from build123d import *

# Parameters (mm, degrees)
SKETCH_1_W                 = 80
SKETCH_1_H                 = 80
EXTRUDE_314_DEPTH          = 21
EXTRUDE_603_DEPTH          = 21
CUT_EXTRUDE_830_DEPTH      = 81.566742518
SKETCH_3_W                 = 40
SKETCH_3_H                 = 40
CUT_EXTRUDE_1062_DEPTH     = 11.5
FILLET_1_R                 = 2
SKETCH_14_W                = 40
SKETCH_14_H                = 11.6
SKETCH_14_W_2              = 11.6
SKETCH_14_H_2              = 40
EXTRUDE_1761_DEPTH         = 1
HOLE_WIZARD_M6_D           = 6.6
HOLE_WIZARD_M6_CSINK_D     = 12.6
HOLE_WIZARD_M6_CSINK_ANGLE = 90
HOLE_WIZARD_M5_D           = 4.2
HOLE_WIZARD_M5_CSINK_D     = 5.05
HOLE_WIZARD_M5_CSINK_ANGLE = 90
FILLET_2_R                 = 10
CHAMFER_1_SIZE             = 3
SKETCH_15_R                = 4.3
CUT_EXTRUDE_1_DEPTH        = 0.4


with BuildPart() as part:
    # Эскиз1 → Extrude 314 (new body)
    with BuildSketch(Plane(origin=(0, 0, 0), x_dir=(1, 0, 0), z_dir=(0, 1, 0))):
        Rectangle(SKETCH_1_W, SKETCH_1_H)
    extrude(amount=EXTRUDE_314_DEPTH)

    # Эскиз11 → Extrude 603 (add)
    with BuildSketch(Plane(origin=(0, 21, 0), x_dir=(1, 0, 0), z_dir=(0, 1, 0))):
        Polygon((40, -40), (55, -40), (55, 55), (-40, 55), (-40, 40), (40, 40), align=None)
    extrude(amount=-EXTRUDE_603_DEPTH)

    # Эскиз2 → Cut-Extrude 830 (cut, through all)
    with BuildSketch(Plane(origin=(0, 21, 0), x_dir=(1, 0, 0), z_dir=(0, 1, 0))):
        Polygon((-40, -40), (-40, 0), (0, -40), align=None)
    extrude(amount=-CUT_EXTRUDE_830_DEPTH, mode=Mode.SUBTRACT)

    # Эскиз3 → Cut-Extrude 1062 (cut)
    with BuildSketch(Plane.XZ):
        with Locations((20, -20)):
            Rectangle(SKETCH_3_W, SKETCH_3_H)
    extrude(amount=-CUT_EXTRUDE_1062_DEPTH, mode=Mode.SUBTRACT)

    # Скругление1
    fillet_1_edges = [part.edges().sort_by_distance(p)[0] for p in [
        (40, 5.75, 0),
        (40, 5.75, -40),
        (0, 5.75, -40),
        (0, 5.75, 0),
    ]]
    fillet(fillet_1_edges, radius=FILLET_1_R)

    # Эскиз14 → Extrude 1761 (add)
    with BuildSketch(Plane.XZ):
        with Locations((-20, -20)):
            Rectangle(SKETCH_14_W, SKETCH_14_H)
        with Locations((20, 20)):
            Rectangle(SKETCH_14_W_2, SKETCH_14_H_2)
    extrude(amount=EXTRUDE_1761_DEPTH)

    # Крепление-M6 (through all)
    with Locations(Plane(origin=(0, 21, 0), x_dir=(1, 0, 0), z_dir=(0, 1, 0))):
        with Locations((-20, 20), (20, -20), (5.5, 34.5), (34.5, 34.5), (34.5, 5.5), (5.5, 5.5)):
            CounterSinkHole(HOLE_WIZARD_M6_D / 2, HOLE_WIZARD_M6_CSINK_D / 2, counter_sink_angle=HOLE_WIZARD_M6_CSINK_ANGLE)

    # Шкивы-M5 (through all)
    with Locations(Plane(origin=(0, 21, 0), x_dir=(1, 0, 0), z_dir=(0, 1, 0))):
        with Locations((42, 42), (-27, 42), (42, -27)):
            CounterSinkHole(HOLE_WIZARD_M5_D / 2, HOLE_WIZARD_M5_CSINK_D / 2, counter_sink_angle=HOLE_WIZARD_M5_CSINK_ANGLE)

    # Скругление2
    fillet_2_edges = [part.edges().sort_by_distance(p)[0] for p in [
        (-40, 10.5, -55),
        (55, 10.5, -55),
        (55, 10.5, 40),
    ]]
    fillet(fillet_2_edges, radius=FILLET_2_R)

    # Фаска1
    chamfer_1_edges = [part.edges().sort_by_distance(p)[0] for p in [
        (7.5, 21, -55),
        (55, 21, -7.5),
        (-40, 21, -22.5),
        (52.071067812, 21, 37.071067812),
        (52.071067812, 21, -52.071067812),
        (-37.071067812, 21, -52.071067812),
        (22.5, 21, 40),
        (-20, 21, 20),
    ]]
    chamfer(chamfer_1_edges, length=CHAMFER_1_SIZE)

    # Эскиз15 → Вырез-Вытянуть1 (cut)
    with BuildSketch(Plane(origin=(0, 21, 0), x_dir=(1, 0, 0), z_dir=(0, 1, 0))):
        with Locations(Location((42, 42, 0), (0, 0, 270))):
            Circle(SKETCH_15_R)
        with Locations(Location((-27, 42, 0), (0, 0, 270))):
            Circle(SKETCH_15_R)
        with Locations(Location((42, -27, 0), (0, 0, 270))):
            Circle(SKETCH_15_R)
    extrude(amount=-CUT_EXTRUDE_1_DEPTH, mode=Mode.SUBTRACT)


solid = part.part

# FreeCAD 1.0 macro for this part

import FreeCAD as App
import Part
import Sketcher

V = App.Vector


def edges_at(feature, points):
    """Names of the edges that pass closest to the given points."""
    edges = feature.Shape.Edges
    near = lambda p: min(range(len(edges)), key=lambda i: edges[i].distToShape(Part.Vertex(*p))[0])
    return sorted({f"Edge{near(p) + 1}" for p in points})


def add_polygon(sketch, points):
    """Adds a closed chain of lines whose ends are joined by coincident constraints."""
    first, n = sketch.GeometryCount, len(points)
    for a, b in zip(points, points[1:] + points[:1]):
        sketch.addGeometry(Part.LineSegment(App.Vector(*a, 0), App.Vector(*b, 0)), False)
    for i in range(n):
        sketch.addConstraint(Sketcher.Constraint("Coincident", first + i, 2, first + (i + 1) % n, 1))

doc = App.newDocument("Part")
params = doc.addObject("Spreadsheet::Sheet", "Params")
for row, (alias, value) in enumerate([
    ("sketch1_width", "80 mm"),
    ("pad1_length", "21 mm"),
    ("sketch2_width", "15 mm"),
    ("sketch2_width2", "95 mm"),
    ("pad2_length", "21 mm"),
    ("sketch3_width", "40 mm"),
    ("sketch4_width", "40 mm"),
    ("pocket2_length", "11.5 mm"),
    ("fillet_radius", "2 mm"),
    ("sketch5_width", "40 mm"),
    ("sketch5_width2", "11.6 mm"),
    ("pad3_length", "1 mm"),
    ("sketch6_diameter", "6.6 mm"),
    ("hole_diameter", "6.6 mm"),
    ("hole_csink_diameter", "12.6 mm"),
    ("sketch7_diameter", "4.2 mm"),
    ("hole2_diameter", "4.2 mm"),
    ("hole2_csink_diameter", "5.05 mm"),
    ("fillet2_radius", "10 mm"),
    ("chamfer_size", "3 mm"),
    ("sketch8_diameter", "8.6 mm"),
    ("pocket3_length", "0.4 mm"),
], start=1):
    params.set(f"A{row}", alias)
    params.set(f"B{row}", "=" + value)
    params.setAlias(f"B{row}", alias)

body = doc.addObject("PartDesign::Body", "Body")

sketch1 = body.newObject("Sketcher::SketchObject", "Sketch")
sketch1.AttachmentSupport = (doc.getObject("XZ_Plane"), [""])
sketch1.MapMode = "FlatFace"
add_polygon(sketch1, [(-40, -40), (-40, 40), (40, 40), (40, -40)])
sketch1.addConstraint(Sketcher.Constraint("Vertical", 0))
sketch1.addConstraint(Sketcher.Constraint("Horizontal", 1))
sketch1.addConstraint(Sketcher.Constraint("Vertical", 2))
sketch1.addConstraint(Sketcher.Constraint("Horizontal", 3))
sketch1.addConstraint(Sketcher.Constraint("Symmetric", 0, 2, 2, 2, -1, 1))
sketch1.addConstraint(Sketcher.Constraint("Equal", 3, 0))
sketch1.addConstraint(Sketcher.Constraint("DistanceX", 1, 1, 1, 2, 80.0))
sketch1.setExpression("Constraints[10]", "Params.sketch1_width")
pad1 = body.newObject("PartDesign::Pad", "Pad")
pad1.Profile = sketch1
pad1.setExpression("Length", "Params.pad1_length")
pad1.Reversed = True

sketch2 = body.newObject("Sketcher::SketchObject", "Sketch001")
sketch2.AttachmentSupport = (doc.getObject("XZ_Plane"), [""])
sketch2.MapMode = "FlatFace"
sketch2.AttachmentOffset = App.Placement(V(0, 0, -21), App.Rotation())
add_polygon(sketch2, [(40, 40), (55, 40), (55, -55), (-40, -55), (-40, -40), (40, -40)])
sketch2.addConstraint(Sketcher.Constraint("Horizontal", 0))
sketch2.addConstraint(Sketcher.Constraint("Vertical", 1))
sketch2.addConstraint(Sketcher.Constraint("Horizontal", 2))
sketch2.addConstraint(Sketcher.Constraint("Vertical", 3))
sketch2.addConstraint(Sketcher.Constraint("Horizontal", 4))
sketch2.addConstraint(Sketcher.Constraint("Vertical", 5))
sketch2.addConstraint(Sketcher.Constraint("Symmetric", 3, 2, 5, 2, -1, 1))
sketch2.addConstraint(Sketcher.Constraint("Equal", 2, 1))
sketch2.addConstraint(Sketcher.Constraint("Equal", 0, 3))
sketch2.addConstraint(Sketcher.Constraint("DistanceX", 0, 1, 0, 2, 15.0))
sketch2.addConstraint(Sketcher.Constraint("DistanceX", 2, 2, 2, 1, 95.0))
sketch2.setExpression("Constraints[15]", "Params.sketch2_width")
sketch2.setExpression("Constraints[16]", "Params.sketch2_width2")
pad2 = body.newObject("PartDesign::Pad", "Pad001")
pad2.Profile = sketch2
pad2.setExpression("Length", "Params.pad2_length")

sketch3 = body.newObject("Sketcher::SketchObject", "Sketch002")
sketch3.AttachmentSupport = (doc.getObject("XZ_Plane"), [""])
sketch3.MapMode = "FlatFace"
sketch3.AttachmentOffset = App.Placement(V(0, 0, -21), App.Rotation())
add_polygon(sketch3, [(-40, 0), (-40, 40), (0, 40)])
sketch3.addConstraint(Sketcher.Constraint("Vertical", 0))
sketch3.addConstraint(Sketcher.Constraint("Horizontal", 1))
sketch3.addConstraint(Sketcher.Constraint("PointOnObject", 1, 2, -2))
sketch3.addConstraint(Sketcher.Constraint("PointOnObject", 2, 2, -1))
sketch3.addConstraint(Sketcher.Constraint("Equal", 1, 0))
sketch3.addConstraint(Sketcher.Constraint("DistanceX", 1, 1, 1, 2, 40.0))
sketch3.setExpression("Constraints[8]", "Params.sketch3_width")
pocket1 = body.newObject("PartDesign::Pocket", "Pocket")
pocket1.Profile = sketch3
pocket1.Type = "ThroughAll"
pocket1.Reversed = True

sketch4 = body.newObject("Sketcher::SketchObject", "Sketch003")
sketch4.AttachmentSupport = (doc.getObject("XZ_Plane"), [""])
sketch4.MapMode = "FlatFace"
add_polygon(sketch4, [(0, 0), (0, -40), (40, -40), (40, 0)])
sketch4.addConstraint(Sketcher.Constraint("Vertical", 0))
sketch4.addConstraint(Sketcher.Constraint("Horizontal", 1))
sketch4.addConstraint(Sketcher.Constraint("Vertical", 2))
sketch4.addConstraint(Sketcher.Constraint("Horizontal", 3))
sketch4.addConstraint(Sketcher.Constraint("Coincident", 3, 2, -1, 1))
sketch4.addConstraint(Sketcher.Constraint("Equal", 3, 0))
sketch4.addConstraint(Sketcher.Constraint("DistanceX", 1, 1, 1, 2, 40.0))
sketch4.setExpression("Constraints[10]", "Params.sketch4_width")
pocket2 = body.newObject("PartDesign::Pocket", "Pocket001")
pocket2.Profile = sketch4
pocket2.setExpression("Length", "Params.pocket2_length")
doc.recompute()

fillet = body.newObject("PartDesign::Fillet", "Fillet")
fillet.Base = (pocket2, edges_at(pocket2, [
    (40, 5.75, 0),
    (40, 5.75, -40),
    (0, 5.75, -40),
    (0, 5.75, 0),
]))
fillet.setExpression("Radius", "Params.fillet_radius")

sketch5 = body.newObject("Sketcher::SketchObject", "Sketch004")
sketch5.AttachmentSupport = (doc.getObject("XZ_Plane"), [""])
sketch5.MapMode = "FlatFace"
add_polygon(sketch5, [(-40, -14), (-40, -26), (0, -26), (0, -14)])
add_polygon(sketch5, [(14, 40), (14, 0), (26, 0), (26, 40)])
sketch5.addConstraint(Sketcher.Constraint("Vertical", 0))
sketch5.addConstraint(Sketcher.Constraint("Horizontal", 1))
sketch5.addConstraint(Sketcher.Constraint("Vertical", 2))
sketch5.addConstraint(Sketcher.Constraint("Horizontal", 3))
sketch5.addConstraint(Sketcher.Constraint("Vertical", 4))
sketch5.addConstraint(Sketcher.Constraint("Horizontal", 5))
sketch5.addConstraint(Sketcher.Constraint("Vertical", 6))
sketch5.addConstraint(Sketcher.Constraint("Horizontal", 7))
sketch5.addConstraint(Sketcher.Constraint("PointOnObject", 1, 2, -2))
sketch5.addConstraint(Sketcher.Constraint("PointOnObject", 4, 2, -1))
sketch5.addConstraint(Sketcher.Constraint("Equal", 7, 0))
sketch5.addConstraint(Sketcher.Constraint("Equal", 3, 4))
sketch5.addConstraint(Sketcher.Constraint("DistanceX", 1, 1, 1, 2, 40.0))
sketch5.addConstraint(Sketcher.Constraint("DistanceX", 5, 1, 5, 2, 11.6))
sketch5.addConstraint(Sketcher.Constraint("DistanceY", 0, 2, -1, 1, 25.8))
sketch5.addConstraint(Sketcher.Constraint("DistanceX", -1, 1, 4, 2, 14.2))
sketch5.setExpression("Constraints[20]", "Params.sketch5_width")
sketch5.setExpression("Constraints[21]", "Params.sketch5_width2")
pad3 = body.newObject("PartDesign::Pad", "Pad002")
pad3.Profile = sketch5
pad3.setExpression("Length", "Params.pad3_length")

sketch6 = body.newObject("Sketcher::SketchObject", "Sketch005")
sketch6.AttachmentSupport = (doc.getObject("XZ_Plane"), [""])
sketch6.MapMode = "FlatFace"
sketch6.AttachmentOffset = App.Placement(V(0, 0, -21), App.Rotation())
sketch6.addGeometry(Part.Circle(V(-20, -20, 0), V(0, 0, 1), 3.3), False)
sketch6.addGeometry(Part.Circle(V(20, 20, 0), V(0, 0, 1), 3.3), False)
sketch6.addGeometry(Part.Circle(V(5.5, -34.5, 0), V(0, 0, 1), 3.3), False)
sketch6.addGeometry(Part.Circle(V(34.5, -34.5, 0), V(0, 0, 1), 3.3), False)
sketch6.addGeometry(Part.Circle(V(34.5, -5.5, 0), V(0, 0, 1), 3.3), False)
sketch6.addGeometry(Part.Circle(V(5.5, -5.5, 0), V(0, 0, 1), 3.3), False)
sketch6.addConstraint(Sketcher.Constraint("Equal", 0, 1))
sketch6.addConstraint(Sketcher.Constraint("Equal", 1, 2))
sketch6.addConstraint(Sketcher.Constraint("Equal", 2, 3))
sketch6.addConstraint(Sketcher.Constraint("Equal", 3, 4))
sketch6.addConstraint(Sketcher.Constraint("Equal", 4, 5))
sketch6.addConstraint(Sketcher.Constraint("Symmetric", 0, 3, 1, 3, -1, 1))
sketch6.addConstraint(Sketcher.Constraint("Horizontal", 2, 3, 3, 3))
sketch6.addConstraint(Sketcher.Constraint("Horizontal", 4, 3, 5, 3))
sketch6.addConstraint(Sketcher.Constraint("Vertical", 3, 3, 4, 3))
sketch6.addConstraint(Sketcher.Constraint("Vertical", 2, 3, 5, 3))
sketch6.addConstraint(Sketcher.Constraint("Diameter", 0, 6.6))
sketch6.addConstraint(Sketcher.Constraint("DistanceX", 0, 3, -1, 1, 20.0))
sketch6.addConstraint(Sketcher.Constraint("DistanceY", 0, 3, -1, 1, 20.0))
sketch6.addConstraint(Sketcher.Constraint("DistanceX", 2, 3, 3, 3, 29.0))
sketch6.addConstraint(Sketcher.Constraint("DistanceY", 3, 3, 4, 3, 29.0))
sketch6.addConstraint(Sketcher.Constraint("DistanceX", -1, 1, 2, 3, 5.5))
sketch6.addConstraint(Sketcher.Constraint("DistanceY", 2, 3, -1, 1, 34.5))
sketch6.setExpression("Constraints[10]", "Params.sketch6_diameter")
doc.recompute()
hole = body.newObject("PartDesign::Hole", "Hole")
hole.Profile = sketch6
hole.ThreadType = "None"
hole.setExpression("Diameter", "Params.hole_diameter")
hole.DepthType = "ThroughAll"
hole.HoleCutType = "Countersink"
hole.setExpression("HoleCutDiameter", "Params.hole_csink_diameter")
hole.HoleCutCountersinkAngle = 90
hole.Reversed = True

sketch7 = body.newObject("Sketcher::SketchObject", "Sketch006")
sketch7.AttachmentSupport = (doc.getObject("XZ_Plane"), [""])
sketch7.MapMode = "FlatFace"
sketch7.AttachmentOffset = App.Placement(V(0, 0, -21), App.Rotation())
sketch7.addGeometry(Part.Circle(V(42, -42, 0), V(0, 0, 1), 2.1), False)
sketch7.addGeometry(Part.Circle(V(-27, -42, 0), V(0, 0, 1), 2.1), False)
sketch7.addGeometry(Part.Circle(V(42, 27, 0), V(0, 0, 1), 2.1), False)
sketch7.addConstraint(Sketcher.Constraint("Equal", 0, 1))
sketch7.addConstraint(Sketcher.Constraint("Equal", 1, 2))
sketch7.addConstraint(Sketcher.Constraint("Horizontal", 0, 3, 1, 3))
sketch7.addConstraint(Sketcher.Constraint("Vertical", 0, 3, 2, 3))
sketch7.addConstraint(Sketcher.Constraint("Diameter", 0, 4.2))
sketch7.addConstraint(Sketcher.Constraint("DistanceX", -1, 1, 0, 3, 42.0))
sketch7.addConstraint(Sketcher.Constraint("DistanceY", 0, 3, -1, 1, 42.0))
sketch7.addConstraint(Sketcher.Constraint("DistanceX", 1, 3, -1, 1, 27.0))
sketch7.addConstraint(Sketcher.Constraint("DistanceY", -1, 1, 2, 3, 27.0))
sketch7.setExpression("Constraints[4]", "Params.sketch7_diameter")
doc.recompute()
hole2 = body.newObject("PartDesign::Hole", "Hole001")
hole2.Profile = sketch7
hole2.ThreadType = "None"
hole2.setExpression("Diameter", "Params.hole2_diameter")
hole2.DepthType = "ThroughAll"
hole2.HoleCutType = "Countersink"
hole2.setExpression("HoleCutDiameter", "Params.hole2_csink_diameter")
hole2.HoleCutCountersinkAngle = 90
hole2.Reversed = True
doc.recompute()

fillet2 = body.newObject("PartDesign::Fillet", "Fillet001")
fillet2.Base = (hole2, edges_at(hole2, [(-40, 10.5, -55), (55, 10.5, -55), (55, 10.5, 40)]))
fillet2.setExpression("Radius", "Params.fillet2_radius")
doc.recompute()

chamfer = body.newObject("PartDesign::Chamfer", "Chamfer")
chamfer.Base = (fillet2, edges_at(fillet2, [
    (7.5, 21, -55),
    (55, 21, -7.5),
    (-40, 21, -22.5),
    (52.071, 21, 37.071),
    (52.071, 21, -52.071),
    (-37.071, 21, -52.071),
    (22.5, 21, 40),
    (-20, 21, 20),
]))
chamfer.setExpression("Size", "Params.chamfer_size")

sketch8 = body.newObject("Sketcher::SketchObject", "Sketch007")
sketch8.AttachmentSupport = (doc.getObject("XZ_Plane"), [""])
sketch8.MapMode = "FlatFace"
sketch8.AttachmentOffset = App.Placement(V(0, 0, -21), App.Rotation())
sketch8.addGeometry(Part.Circle(V(42, -42, 0), V(0, 0, 1), 4.3), False)
sketch8.addGeometry(Part.Circle(V(-27, -42, 0), V(0, 0, 1), 4.3), False)
sketch8.addGeometry(Part.Circle(V(42, 27, 0), V(0, 0, 1), 4.3), False)
sketch8.addConstraint(Sketcher.Constraint("Equal", 0, 1))
sketch8.addConstraint(Sketcher.Constraint("Equal", 1, 2))
sketch8.addConstraint(Sketcher.Constraint("Horizontal", 0, 3, 1, 3))
sketch8.addConstraint(Sketcher.Constraint("Vertical", 0, 3, 2, 3))
sketch8.addConstraint(Sketcher.Constraint("Diameter", 0, 8.6))
sketch8.addConstraint(Sketcher.Constraint("DistanceX", -1, 1, 0, 3, 42.0))
sketch8.addConstraint(Sketcher.Constraint("DistanceY", 0, 3, -1, 1, 42.0))
sketch8.addConstraint(Sketcher.Constraint("DistanceX", 1, 3, -1, 1, 27.0))
sketch8.addConstraint(Sketcher.Constraint("DistanceY", -1, 1, 2, 3, 27.0))
sketch8.setExpression("Constraints[4]", "Params.sketch8_diameter")
pocket3 = body.newObject("PartDesign::Pocket", "Pocket002")
pocket3.Profile = sketch8
pocket3.setExpression("Length", "Params.pocket3_length")
pocket3.Reversed = True

doc.recompute()
